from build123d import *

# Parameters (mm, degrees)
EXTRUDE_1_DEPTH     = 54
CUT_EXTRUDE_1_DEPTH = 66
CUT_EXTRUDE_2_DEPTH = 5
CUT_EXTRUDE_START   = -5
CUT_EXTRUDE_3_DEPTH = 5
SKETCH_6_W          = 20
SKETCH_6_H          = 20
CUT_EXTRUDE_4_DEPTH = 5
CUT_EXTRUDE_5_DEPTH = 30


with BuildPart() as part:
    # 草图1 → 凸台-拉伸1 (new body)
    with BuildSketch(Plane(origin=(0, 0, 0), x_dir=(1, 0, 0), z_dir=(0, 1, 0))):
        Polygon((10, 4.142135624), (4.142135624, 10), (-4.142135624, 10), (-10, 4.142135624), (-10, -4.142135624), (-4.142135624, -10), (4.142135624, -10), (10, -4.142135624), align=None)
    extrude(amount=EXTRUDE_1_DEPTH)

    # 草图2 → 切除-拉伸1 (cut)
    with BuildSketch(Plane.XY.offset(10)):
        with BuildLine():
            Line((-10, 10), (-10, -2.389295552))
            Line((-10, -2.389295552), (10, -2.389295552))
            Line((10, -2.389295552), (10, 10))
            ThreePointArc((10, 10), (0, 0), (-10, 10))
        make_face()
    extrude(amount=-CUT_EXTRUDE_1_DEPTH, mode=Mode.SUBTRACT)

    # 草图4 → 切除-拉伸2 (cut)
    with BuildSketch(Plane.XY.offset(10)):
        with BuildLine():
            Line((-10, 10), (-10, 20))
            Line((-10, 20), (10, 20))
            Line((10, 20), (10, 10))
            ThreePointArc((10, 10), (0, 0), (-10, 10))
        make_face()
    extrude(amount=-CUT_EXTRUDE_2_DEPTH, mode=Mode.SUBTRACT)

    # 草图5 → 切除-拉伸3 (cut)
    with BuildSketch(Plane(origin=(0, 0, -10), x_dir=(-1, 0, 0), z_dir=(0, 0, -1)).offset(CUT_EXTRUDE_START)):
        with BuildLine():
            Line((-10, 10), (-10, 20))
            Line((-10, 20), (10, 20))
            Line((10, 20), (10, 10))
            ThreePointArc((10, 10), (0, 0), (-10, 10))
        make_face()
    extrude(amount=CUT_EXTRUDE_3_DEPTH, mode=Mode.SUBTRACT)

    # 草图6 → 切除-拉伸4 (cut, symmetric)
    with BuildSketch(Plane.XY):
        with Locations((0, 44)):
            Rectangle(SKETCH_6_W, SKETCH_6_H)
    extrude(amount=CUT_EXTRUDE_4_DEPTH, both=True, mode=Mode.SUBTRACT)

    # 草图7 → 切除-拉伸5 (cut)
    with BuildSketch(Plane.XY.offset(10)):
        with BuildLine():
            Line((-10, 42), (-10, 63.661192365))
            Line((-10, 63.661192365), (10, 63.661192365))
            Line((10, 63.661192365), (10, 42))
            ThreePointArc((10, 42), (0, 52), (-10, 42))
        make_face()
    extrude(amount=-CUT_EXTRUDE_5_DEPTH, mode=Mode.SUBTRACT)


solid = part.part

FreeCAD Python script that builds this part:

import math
import FreeCAD as App
import Part
import Sketcher
from FreeCAD import Vector

doc = App.newDocument("Part")
body = doc.addObject("PartDesign::Body", "Body")

sketch1 = doc.addObject("Sketcher::SketchObject", "Sketch")
body.addObject(sketch1)
sketch1.AttachmentSupport = (doc.XZ_Plane, [""])
sketch1.MapMode = "FlatFace"
sketch1.addGeometry([
    Part.LineSegment(Vector(10, -4, 0), Vector(4, -10, 0)),
    Part.LineSegment(Vector(4, -10, 0), Vector(-4, -10, 0)),
    Part.LineSegment(Vector(-4, -10, 0), Vector(-10, -4, 0)),
    Part.LineSegment(Vector(-10, -4, 0), Vector(-10, 4, 0)),
    Part.LineSegment(Vector(-10, 4, 0), Vector(-4, 10, 0)),
    Part.LineSegment(Vector(-4, 10, 0), Vector(4, 10, 0)),
    Part.LineSegment(Vector(4, 10, 0), Vector(10, 4, 0)),
    Part.LineSegment(Vector(10, 4, 0), Vector(10, -4, 0)),
], False)
sketch1.addConstraint([
    Sketcher.Constraint("Coincident", 0, 2, 1, 1),
    Sketcher.Constraint("Coincident", 1, 2, 2, 1),
    Sketcher.Constraint("Coincident", 2, 2, 3, 1),
    Sketcher.Constraint("Coincident", 3, 2, 4, 1),
    Sketcher.Constraint("Coincident", 4, 2, 5, 1),
    Sketcher.Constraint("Coincident", 5, 2, 6, 1),
    Sketcher.Constraint("Coincident", 6, 2, 7, 1),
    Sketcher.Constraint("Coincident", 7, 2, 0, 1),
    Sketcher.Constraint("Horizontal", 1),
    Sketcher.Constraint("Vertical", 3),
    Sketcher.Constraint("Horizontal", 5),
    Sketcher.Constraint("Vertical", 7),
    Sketcher.Constraint("Symmetric", 0, 2, 4, 2, -1, 1),
    Sketcher.Constraint("Symmetric", 2, 2, 6, 2, -1, 1),
    Sketcher.Constraint("Perpendicular", 0, 2),
    Sketcher.Constraint("Perpendicular", 2, 4),
    Sketcher.Constraint("Perpendicular", 4, 6),
    Sketcher.Constraint("Horizontal", 3, 2, 6, 2),
    Sketcher.Constraint("Vertical", 1, 2, 4, 2),
    Sketcher.Constraint("Equal", 5, 3),
    Sketcher.Constraint("DistanceY", 0, 2, -1, 1, 10.0),
    Sketcher.Constraint("DistanceX", 1, 2, 1, 1, 8.284271),
])
pad1 = doc.addObject("PartDesign::Pad", "Pad")
body.addObject(pad1)
pad1.Profile = sketch1
pad1.Length = 54
pad1.Reversed = True

sketch2 = doc.addObject("Sketcher::SketchObject", "Sketch001")
body.addObject(sketch2)
sketch2.AttachmentSupport = (doc.XY_Plane, [""])
sketch2.MapMode = "FlatFace"
sketch2.AttachmentOffset = App.Placement(Vector(0, 0, 10), App.Rotation())
sketch2.addGeometry([
    Part.LineSegment(Vector(-10, 10, 0), Vector(-10, -2, 0)),
    Part.LineSegment(Vector(-10, -2, 0), Vector(10, -2, 0)),
    Part.LineSegment(Vector(10, -2, 0), Vector(10, 10, 0)),
    Part.ArcOfCircle(Part.Circle(Vector(0, 10, 0), Vector(0, 0, 1), 10), math.radians(180), math.radians(360)),
], False)
sketch2.addConstraint([
    Sketcher.Constraint("Coincident", 0, 2, 1, 1),
    Sketcher.Constraint("Coincident", 1, 2, 2, 1),
    Sketcher.Constraint("Tangent", 2, 2, 3, 2),
    Sketcher.Constraint("Tangent", 3, 1, 0, 1),
    Sketcher.Constraint("Vertical", 0),
    Sketcher.Constraint("Horizontal", 1),
    Sketcher.Constraint("Vertical", 2),
    Sketcher.Constraint("PointOnObject", 3, 3, -2),
    Sketcher.Constraint("Radius", 3, 10.0),
    Sketcher.Constraint("DistanceY", -1, 1, 3, 3, 10.0),
    Sketcher.Constraint("DistanceY", 0, 2, 0, 1, 12.389296),
])
pocket1 = doc.addObject("PartDesign::Pocket", "Pocket")
body.addObject(pocket1)
pocket1.Profile = sketch2
pocket1.Length = 66

sketch3 = doc.addObject("Sketcher::SketchObject", "Sketch002")
body.addObject(sketch3)
sketch3.AttachmentSupport = (doc.XY_Plane, [""])
sketch3.MapMode = "FlatFace"
sketch3.AttachmentOffset = App.Placement(Vector(0, 0, 10), App.Rotation())
sketch3.addGeometry([
    Part.LineSegment(Vector(-10, 20, 0), Vector(-10, 10, 0)),
    Part.ArcOfCircle(Part.Circle(Vector(0, 10, 0), Vector(0, 0, 1), 10), math.radians(180), math.radians(360)),
    Part.LineSegment(Vector(10, 10, 0), Vector(10, 20, 0)),
    Part.LineSegment(Vector(10, 20, 0), Vector(-10, 20, 0)),
], False)
sketch3.addConstraint([
    Sketcher.Constraint("Tangent", 0, 2, 1, 1),
    Sketcher.Constraint("Tangent", 1, 2, 2, 1),
    Sketcher.Constraint("Coincident", 2, 2, 3, 1),
    Sketcher.Constraint("Coincident", 3, 2, 0, 1),
    Sketcher.Constraint("Vertical", 0),
    Sketcher.Constraint("Vertical", 2),
    Sketcher.Constraint("Horizontal", 3),
    Sketcher.Constraint("PointOnObject", 1, 3, -2),
    Sketcher.Constraint("Radius", 1, 10.0),
    Sketcher.Constraint("DistanceY", 0, 2, 0, 1, 10.0),
    Sketcher.Constraint("DistanceY", -1, 1, 1, 3, 10.0),
])
pocket2 = doc.addObject("PartDesign::Pocket", "Pocket001")
body.addObject(pocket2)
pocket2.Profile = sketch3
pocket2.Length = 5

sketch4 = doc.addObject("Sketcher::SketchObject", "Sketch003")
body.addObject(sketch4)
sketch4.AttachmentSupport = (doc.XY_Plane, [""])
sketch4.MapMode = "FlatFace"
sketch4.AttachmentOffset = App.Placement(Vector(0, 0, -5), App.Rotation())
sketch4.addGeometry([
    Part.LineSegment(Vector(10, 20, 0), Vector(10, 10, 0)),
    Part.ArcOfCircle(Part.Circle(Vector(0, 10, 0), Vector(0, 0, 1), 10), math.radians(180), math.radians(360)),
    Part.LineSegment(Vector(-10, 10, 0), Vector(-10, 20, 0)),
    Part.LineSegment(Vector(-10, 20, 0), Vector(10, 20, 0)),
], False)
sketch4.addConstraint([
    Sketcher.Constraint("Tangent", 0, 2, 1, 2),
    Sketcher.Constraint("Tangent", 1, 1, 2, 1),
    Sketcher.Constraint("Coincident", 2, 2, 3, 1),
    Sketcher.Constraint("Coincident", 3, 2, 0, 1),
    Sketcher.Constraint("Vertical", 0),
    Sketcher.Constraint("Vertical", 2),
    Sketcher.Constraint("Horizontal", 3),
    Sketcher.Constraint("PointOnObject", 1, 3, -2),
    Sketcher.Constraint("Radius", 1, 10.0),
    Sketcher.Constraint("DistanceY", 0, 2, 0, 1, 10.0),
    Sketcher.Constraint("DistanceY", -1, 1, 1, 3, 10.0),
])
pocket3 = doc.addObject("PartDesign::Pocket", "Pocket002")
body.addObject(pocket3)
pocket3.Profile = sketch4
pocket3.Length = 5

sketch5 = doc.addObject("Sketcher::SketchObject", "Sketch004")
body.addObject(sketch5)
sketch5.AttachmentSupport = (doc.XY_Plane, [""])
sketch5.MapMode = "FlatFace"
sketch5.addGeometry([
    Part.LineSegment(Vector(-10, 54, 0), Vector(-10, 34, 0)),
    Part.LineSegment(Vector(-10, 34, 0), Vector(10, 34, 0)),
    Part.LineSegment(Vector(10, 34, 0), Vector(10, 54, 0)),
    Part.LineSegment(Vector(10, 54, 0), Vector(-10, 54, 0)),
], False)
sketch5.addConstraint([
    Sketcher.Constraint("Coincident", 0, 2, 1, 1),
    Sketcher.Constraint("Coincident", 1, 2, 2, 1),
    Sketcher.Constraint("Coincident", 2, 2, 3, 1),
    Sketcher.Constraint("Coincident", 3, 2, 0, 1),
    Sketcher.Constraint("Vertical", 0),
    Sketcher.Constraint("Horizontal", 1),
    Sketcher.Constraint("Vertical", 2),
    Sketcher.Constraint("Horizontal", 3),
    Sketcher.Constraint("Equal", 3, 0),
    Sketcher.Constraint("DistanceX", 1, 1, 1, 2, 20.0),
    Sketcher.Constraint("DistanceX", 0, 2, -1, 1, 10.0),
    Sketcher.Constraint("DistanceY", -1, 1, 0, 2, 34.0),
])
pocket4 = doc.addObject("PartDesign::Pocket", "Pocket003")
body.addObject(pocket4)
pocket4.Profile = sketch5
pocket4.Length = 10
pocket4.Midplane = True

sketch6 = doc.addObject("Sketcher::SketchObject", "Sketch005")
body.addObject(sketch6)
sketch6.AttachmentSupport = (doc.XY_Plane, [""])
sketch6.MapMode = "FlatFace"
sketch6.AttachmentOffset = App.Placement(Vector(0, 0, 10), App.Rotation())
sketch6.addGeometry([
    Part.LineSegment(Vector(-10, 64, 0), Vector(-10, 42, 0)),
    Part.ArcOfCircle(Part.Circle(Vector(0, 42, 0), Vector(0, 0, 1), 10), math.radians(0), math.radians(180)),
    Part.LineSegment(Vector(10, 42, 0), Vector(10, 64, 0)),
    Part.LineSegment(Vector(10, 64, 0), Vector(-10, 64, 0)),
], False)
sketch6.addConstraint([
    Sketcher.Constraint("Tangent", 0, 2, 1, 2),
    Sketcher.Constraint("Tangent", 1, 1, 2, 1),
    Sketcher.Constraint("Coincident", 2, 2, 3, 1),
    Sketcher.Constraint("Coincident", 3, 2, 0, 1),
    Sketcher.Constraint("Vertical", 0),
    Sketcher.Constraint("Vertical", 2),
    Sketcher.Constraint("Horizontal", 3),
    Sketcher.Constraint("PointOnObject", 1, 3, -2),
    Sketcher.Constraint("Radius", 1, 10.0),
    Sketcher.Constraint("DistanceY", -1, 1, 1, 3, 42.0),
    Sketcher.Constraint("DistanceY", 0, 2, 0, 1, 21.661192),
])
pocket5 = doc.addObject("PartDesign::Pocket", "Pocket004")
body.addObject(pocket5)
pocket5.Profile = sketch6
pocket5.Length = 30

doc.recompute()
